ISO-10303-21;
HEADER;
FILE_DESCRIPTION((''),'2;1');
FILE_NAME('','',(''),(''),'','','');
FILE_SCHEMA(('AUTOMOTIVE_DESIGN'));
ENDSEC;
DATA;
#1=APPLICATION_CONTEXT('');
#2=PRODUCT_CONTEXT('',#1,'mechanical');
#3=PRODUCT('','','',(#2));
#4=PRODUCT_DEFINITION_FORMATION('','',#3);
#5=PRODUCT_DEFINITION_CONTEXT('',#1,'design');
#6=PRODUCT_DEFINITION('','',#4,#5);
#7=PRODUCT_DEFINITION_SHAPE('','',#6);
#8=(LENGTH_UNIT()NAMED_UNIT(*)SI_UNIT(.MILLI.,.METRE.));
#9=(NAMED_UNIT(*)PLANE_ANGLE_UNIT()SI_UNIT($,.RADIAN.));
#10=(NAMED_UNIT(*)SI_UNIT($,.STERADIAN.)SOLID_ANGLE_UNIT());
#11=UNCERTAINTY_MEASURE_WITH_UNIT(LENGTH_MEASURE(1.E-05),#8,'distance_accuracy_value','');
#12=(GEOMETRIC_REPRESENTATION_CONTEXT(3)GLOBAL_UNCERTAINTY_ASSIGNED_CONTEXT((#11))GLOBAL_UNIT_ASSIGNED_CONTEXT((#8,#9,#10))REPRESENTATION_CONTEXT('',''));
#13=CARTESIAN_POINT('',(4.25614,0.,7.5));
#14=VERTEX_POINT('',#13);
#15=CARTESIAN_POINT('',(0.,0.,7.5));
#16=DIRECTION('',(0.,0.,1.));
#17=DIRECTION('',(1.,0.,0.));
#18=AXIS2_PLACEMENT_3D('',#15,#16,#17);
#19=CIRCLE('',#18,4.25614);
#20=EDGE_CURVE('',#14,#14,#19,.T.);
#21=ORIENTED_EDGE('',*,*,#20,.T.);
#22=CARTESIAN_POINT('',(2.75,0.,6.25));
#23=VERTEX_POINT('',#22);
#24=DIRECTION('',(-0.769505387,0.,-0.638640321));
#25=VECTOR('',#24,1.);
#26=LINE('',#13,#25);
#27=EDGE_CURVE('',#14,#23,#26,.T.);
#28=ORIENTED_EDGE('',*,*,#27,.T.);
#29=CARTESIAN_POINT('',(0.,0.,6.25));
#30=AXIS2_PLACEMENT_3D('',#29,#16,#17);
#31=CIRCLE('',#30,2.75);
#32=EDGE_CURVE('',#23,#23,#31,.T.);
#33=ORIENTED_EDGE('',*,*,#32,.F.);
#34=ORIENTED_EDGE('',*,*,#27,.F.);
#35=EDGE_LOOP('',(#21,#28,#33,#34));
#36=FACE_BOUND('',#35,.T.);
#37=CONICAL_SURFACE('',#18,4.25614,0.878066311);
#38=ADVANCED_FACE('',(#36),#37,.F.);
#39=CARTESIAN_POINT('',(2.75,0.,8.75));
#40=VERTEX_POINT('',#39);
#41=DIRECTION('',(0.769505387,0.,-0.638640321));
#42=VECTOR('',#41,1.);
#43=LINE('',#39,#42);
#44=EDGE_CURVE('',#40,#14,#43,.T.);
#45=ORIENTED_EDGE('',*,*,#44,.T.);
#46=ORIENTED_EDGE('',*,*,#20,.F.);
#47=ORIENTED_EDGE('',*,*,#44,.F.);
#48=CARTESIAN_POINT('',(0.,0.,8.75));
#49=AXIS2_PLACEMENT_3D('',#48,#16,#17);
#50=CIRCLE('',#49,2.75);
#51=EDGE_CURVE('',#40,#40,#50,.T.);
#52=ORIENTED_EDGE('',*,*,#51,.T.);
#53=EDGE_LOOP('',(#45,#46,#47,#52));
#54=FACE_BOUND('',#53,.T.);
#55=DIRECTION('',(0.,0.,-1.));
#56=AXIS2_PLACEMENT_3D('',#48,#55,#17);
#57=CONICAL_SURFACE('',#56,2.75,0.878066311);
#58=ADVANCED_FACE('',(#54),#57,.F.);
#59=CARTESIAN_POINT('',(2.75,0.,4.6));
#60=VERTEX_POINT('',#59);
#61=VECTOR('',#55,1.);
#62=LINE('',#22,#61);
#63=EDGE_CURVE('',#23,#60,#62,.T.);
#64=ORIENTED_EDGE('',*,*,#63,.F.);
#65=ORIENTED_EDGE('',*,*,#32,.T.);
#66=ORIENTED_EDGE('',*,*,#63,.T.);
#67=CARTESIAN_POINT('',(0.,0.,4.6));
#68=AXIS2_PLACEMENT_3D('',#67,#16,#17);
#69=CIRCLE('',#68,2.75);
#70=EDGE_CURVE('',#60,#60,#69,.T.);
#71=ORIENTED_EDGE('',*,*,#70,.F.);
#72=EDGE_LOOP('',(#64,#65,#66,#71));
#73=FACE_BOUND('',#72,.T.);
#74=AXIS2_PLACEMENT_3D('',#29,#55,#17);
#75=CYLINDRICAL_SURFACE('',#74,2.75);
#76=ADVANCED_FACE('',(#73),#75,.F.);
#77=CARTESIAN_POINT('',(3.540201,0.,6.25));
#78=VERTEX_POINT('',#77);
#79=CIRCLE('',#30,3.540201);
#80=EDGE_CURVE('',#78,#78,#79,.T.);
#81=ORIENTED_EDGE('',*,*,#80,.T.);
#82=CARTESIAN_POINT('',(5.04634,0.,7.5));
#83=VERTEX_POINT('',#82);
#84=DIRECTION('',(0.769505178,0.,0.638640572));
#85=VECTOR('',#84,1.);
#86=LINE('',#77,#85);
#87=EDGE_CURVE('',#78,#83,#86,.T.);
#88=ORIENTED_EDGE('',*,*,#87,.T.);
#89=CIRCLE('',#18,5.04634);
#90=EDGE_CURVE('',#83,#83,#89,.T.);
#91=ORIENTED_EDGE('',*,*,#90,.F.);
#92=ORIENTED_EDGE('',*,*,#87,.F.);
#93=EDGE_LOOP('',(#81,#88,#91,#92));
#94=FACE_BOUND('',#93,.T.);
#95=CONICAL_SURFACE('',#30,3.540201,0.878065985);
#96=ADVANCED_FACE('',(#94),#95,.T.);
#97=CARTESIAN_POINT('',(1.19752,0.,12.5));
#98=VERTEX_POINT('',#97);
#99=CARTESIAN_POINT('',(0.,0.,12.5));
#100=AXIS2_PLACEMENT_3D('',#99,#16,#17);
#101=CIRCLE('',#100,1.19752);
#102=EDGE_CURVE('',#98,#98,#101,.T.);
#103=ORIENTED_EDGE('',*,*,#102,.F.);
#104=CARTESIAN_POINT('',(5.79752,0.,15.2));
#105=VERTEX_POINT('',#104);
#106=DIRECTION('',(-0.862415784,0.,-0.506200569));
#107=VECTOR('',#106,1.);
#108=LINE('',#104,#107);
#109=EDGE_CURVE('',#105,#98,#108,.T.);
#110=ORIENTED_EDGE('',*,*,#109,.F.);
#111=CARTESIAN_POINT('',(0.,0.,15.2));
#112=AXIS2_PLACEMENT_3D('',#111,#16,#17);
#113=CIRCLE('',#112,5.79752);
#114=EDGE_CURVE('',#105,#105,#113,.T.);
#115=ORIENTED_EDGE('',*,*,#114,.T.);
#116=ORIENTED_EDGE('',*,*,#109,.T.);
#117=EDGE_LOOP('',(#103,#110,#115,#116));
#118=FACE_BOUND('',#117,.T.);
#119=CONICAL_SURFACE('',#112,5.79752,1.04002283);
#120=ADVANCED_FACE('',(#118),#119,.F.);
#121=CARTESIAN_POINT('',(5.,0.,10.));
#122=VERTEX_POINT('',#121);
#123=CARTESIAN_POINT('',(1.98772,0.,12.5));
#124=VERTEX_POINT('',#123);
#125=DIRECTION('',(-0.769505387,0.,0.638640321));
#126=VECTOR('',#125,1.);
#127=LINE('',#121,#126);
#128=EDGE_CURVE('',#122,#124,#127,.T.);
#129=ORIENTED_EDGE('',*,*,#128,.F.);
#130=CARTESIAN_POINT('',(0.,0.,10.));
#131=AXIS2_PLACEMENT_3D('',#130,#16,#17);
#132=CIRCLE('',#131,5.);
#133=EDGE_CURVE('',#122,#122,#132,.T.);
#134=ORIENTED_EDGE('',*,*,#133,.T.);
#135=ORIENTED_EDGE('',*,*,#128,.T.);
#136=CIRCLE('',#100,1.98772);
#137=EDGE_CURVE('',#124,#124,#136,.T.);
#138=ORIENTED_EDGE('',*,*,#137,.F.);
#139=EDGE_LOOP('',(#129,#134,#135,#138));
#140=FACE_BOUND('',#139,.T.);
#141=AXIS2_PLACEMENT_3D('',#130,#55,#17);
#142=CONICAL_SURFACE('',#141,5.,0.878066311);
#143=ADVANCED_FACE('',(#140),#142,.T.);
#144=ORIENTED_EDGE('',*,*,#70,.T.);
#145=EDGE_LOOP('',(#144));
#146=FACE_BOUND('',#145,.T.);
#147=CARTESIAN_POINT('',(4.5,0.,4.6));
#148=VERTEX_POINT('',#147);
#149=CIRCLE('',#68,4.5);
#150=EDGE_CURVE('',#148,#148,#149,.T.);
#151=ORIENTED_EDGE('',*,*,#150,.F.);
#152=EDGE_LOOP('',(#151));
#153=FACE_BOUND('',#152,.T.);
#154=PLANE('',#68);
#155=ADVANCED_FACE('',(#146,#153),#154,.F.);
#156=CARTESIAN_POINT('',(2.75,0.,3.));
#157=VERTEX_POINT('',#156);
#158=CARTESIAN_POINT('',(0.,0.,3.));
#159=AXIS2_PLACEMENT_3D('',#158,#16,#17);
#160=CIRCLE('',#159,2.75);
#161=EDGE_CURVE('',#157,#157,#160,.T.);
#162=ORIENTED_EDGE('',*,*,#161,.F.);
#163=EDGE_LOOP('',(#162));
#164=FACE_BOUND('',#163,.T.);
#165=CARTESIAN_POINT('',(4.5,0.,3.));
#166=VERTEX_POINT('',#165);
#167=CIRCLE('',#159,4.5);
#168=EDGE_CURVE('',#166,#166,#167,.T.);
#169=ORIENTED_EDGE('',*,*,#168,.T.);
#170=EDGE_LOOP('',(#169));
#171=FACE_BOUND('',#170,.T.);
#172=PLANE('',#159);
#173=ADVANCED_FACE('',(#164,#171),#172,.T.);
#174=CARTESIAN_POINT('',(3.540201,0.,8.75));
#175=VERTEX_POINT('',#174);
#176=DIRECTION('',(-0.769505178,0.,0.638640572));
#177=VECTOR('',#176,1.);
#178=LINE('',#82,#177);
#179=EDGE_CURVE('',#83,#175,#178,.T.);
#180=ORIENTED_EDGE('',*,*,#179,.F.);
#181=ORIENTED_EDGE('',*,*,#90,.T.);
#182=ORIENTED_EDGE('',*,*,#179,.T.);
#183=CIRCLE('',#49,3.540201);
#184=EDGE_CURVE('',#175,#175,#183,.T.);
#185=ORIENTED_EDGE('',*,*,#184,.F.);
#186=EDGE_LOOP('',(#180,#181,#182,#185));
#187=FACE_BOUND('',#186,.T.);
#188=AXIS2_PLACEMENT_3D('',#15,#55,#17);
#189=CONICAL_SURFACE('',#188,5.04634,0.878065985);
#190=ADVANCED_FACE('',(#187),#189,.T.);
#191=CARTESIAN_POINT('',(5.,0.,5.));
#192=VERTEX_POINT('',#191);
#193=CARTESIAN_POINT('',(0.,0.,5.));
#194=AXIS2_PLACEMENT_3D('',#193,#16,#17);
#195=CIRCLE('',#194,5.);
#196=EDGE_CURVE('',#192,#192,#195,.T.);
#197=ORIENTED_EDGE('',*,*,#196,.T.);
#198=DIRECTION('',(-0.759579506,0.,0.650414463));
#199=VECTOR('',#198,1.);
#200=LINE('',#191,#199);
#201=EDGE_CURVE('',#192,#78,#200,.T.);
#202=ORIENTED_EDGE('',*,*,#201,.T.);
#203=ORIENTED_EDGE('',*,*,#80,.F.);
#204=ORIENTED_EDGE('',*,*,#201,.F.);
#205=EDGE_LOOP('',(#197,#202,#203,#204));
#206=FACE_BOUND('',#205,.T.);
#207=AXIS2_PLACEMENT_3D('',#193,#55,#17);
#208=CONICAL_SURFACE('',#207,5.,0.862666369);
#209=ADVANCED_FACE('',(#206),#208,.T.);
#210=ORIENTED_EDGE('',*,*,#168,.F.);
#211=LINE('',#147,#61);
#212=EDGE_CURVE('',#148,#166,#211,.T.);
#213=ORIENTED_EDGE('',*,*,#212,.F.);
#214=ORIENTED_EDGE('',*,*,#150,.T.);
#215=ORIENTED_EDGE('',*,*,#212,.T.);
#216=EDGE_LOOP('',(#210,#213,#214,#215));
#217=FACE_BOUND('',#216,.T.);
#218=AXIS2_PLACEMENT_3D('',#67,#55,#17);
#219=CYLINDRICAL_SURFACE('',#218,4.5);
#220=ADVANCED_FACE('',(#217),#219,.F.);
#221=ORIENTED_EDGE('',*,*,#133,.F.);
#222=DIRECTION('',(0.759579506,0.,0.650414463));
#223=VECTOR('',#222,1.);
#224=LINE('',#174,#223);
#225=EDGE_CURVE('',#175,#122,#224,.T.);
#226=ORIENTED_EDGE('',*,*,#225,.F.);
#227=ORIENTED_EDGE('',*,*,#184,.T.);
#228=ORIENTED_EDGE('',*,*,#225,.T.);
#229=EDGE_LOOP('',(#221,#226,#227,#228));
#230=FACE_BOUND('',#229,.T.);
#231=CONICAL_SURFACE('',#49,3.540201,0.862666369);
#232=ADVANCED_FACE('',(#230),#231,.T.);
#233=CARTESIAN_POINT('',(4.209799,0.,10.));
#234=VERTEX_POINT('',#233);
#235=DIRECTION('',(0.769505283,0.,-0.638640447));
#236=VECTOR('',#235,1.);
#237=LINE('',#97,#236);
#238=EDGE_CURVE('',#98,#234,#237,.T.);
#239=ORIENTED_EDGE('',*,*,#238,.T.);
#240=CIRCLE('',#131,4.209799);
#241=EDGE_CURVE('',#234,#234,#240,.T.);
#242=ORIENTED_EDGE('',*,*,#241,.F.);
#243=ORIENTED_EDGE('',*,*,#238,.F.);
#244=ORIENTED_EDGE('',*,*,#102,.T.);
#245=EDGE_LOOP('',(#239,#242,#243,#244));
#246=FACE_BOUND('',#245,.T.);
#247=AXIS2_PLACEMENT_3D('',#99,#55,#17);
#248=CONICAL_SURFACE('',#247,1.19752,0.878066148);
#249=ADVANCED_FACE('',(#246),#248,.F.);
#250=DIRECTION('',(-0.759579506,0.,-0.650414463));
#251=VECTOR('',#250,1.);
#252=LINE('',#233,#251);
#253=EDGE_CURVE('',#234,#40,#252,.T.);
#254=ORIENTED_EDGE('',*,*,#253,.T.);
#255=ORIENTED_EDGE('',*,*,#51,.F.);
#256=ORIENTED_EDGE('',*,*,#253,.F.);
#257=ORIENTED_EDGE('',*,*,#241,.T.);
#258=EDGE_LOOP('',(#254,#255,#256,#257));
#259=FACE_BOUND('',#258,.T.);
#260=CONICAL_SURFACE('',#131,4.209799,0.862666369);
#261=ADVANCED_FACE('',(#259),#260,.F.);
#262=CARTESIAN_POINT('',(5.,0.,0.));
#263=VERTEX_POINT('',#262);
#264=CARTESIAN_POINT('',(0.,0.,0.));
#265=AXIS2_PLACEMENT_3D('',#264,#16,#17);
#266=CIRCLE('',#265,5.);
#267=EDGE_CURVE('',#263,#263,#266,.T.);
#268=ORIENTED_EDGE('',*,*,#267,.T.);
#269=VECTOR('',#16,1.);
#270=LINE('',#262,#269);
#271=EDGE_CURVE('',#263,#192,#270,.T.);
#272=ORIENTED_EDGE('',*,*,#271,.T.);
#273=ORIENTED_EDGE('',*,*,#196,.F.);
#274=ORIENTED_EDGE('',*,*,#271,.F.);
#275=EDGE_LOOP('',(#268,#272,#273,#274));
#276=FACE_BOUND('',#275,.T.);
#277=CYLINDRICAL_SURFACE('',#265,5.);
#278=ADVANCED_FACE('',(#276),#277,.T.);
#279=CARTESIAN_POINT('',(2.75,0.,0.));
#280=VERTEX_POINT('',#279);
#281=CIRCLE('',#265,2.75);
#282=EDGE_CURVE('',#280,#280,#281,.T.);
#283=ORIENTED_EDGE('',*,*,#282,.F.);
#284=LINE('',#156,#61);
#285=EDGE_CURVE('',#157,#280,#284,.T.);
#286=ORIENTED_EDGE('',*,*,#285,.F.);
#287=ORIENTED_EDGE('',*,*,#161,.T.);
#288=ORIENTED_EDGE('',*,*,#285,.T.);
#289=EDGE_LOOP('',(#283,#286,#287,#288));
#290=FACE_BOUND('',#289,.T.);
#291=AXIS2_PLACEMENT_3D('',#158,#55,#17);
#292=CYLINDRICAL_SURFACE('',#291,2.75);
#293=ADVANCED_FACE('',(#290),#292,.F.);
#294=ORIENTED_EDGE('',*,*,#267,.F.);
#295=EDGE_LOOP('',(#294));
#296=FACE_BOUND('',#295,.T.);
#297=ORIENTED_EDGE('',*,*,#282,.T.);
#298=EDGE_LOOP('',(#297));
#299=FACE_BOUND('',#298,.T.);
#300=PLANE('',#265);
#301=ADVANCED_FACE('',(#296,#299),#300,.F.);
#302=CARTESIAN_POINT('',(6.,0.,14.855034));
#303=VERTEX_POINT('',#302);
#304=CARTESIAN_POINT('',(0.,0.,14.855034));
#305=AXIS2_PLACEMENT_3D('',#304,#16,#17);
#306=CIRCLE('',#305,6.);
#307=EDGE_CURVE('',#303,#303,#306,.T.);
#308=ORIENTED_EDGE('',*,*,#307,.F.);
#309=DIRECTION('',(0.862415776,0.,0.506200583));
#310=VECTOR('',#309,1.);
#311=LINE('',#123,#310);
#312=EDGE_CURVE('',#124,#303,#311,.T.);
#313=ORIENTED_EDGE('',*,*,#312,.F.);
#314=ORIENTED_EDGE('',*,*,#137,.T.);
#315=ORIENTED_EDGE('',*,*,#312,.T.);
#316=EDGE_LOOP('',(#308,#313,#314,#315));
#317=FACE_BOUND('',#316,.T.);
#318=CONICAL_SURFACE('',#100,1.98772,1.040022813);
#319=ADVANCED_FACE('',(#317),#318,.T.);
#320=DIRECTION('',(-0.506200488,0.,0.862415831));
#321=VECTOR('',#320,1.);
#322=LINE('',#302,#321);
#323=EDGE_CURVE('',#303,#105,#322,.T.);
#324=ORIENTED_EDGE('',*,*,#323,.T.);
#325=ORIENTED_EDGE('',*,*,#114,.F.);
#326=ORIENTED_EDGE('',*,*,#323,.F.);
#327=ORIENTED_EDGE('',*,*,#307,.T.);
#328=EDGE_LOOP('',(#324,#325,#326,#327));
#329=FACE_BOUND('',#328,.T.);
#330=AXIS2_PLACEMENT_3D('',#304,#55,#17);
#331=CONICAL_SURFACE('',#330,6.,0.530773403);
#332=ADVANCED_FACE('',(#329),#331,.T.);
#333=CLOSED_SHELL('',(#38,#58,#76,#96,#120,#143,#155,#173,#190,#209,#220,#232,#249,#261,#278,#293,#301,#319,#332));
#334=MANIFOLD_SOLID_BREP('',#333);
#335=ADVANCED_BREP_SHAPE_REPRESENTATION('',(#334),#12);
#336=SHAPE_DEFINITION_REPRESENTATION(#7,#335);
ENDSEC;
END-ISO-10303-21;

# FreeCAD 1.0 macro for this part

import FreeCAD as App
import Part
import Sketcher
from FreeCAD import Vector


def add_polygon(sketch, points):
    """Adds a closed chain of lines whose ends are joined by coincident constraints."""
    first, n = sketch.GeometryCount, len(points)
    for a, b in zip(points, points[1:] + points[:1]):
        sketch.addGeometry(Part.LineSegment(App.Vector(*a, 0), App.Vector(*b, 0)), False)
    for i in range(n):
        sketch.addConstraint(Sketcher.Constraint("Coincident", first + i, 2, first + (i + 1) % n, 1))

doc = App.newDocument("Part")
body = doc.addObject("PartDesign::Body", "Body")

sketch1 = body.newObject("Sketcher::SketchObject", "Sketch")
sketch1.AttachmentSupport = (doc.getObject("XZ_Plane"), [""])
sketch1.MapMode = "FlatFace"
add_polygon(sketch1, [(2.75, 3), (2.75, 0), (5, 0), (5, 5), (3.54, 6.25), (5.05, 7.5), (3.54, 8.75), (5, 10), (1.99, 12.5), (6, 14.86), (5.8, 15.2), (1.2, 12.5), (4.21, 10), (2.75, 8.75), (4.26, 7.5), (2.75, 6.25), (2.75, 4.6), (4.5, 4.6), (4.5, 3)])
sketch1.addConstraint([
    Sketcher.Constraint("Vertical", 0),
    Sketcher.Constraint("Horizontal", 1),
    Sketcher.Constraint("Vertical", 2),
    Sketcher.Constraint("Vertical", 15),
    Sketcher.Constraint("Horizontal", 16),
    Sketcher.Constraint("Vertical", 17),
    Sketcher.Constraint("Horizontal", 18),
    Sketcher.Constraint("PointOnObject", 0, 2, -1),
    Sketcher.Constraint("Parallel", 5, 7),
    Sketcher.Constraint("Perpendicular", 8, 9),
    Sketcher.Constraint("Perpendicular", 9, 10),
    Sketcher.Constraint("Parallel", 7, 11),
    Sketcher.Constraint("Parallel", 6, 12),
    Sketcher.Constraint("Parallel", 11, 13),
    Sketcher.Constraint("Parallel", 4, 14),
    Sketcher.Constraint("Horizontal", 7, 2, 10, 2),
    Sketcher.Constraint("Horizontal", 6, 2, 11, 2),
    Sketcher.Constraint("Horizontal", 5, 2, 12, 2),
    Sketcher.Constraint("Horizontal", 4, 2, 13, 2),
    Sketcher.Constraint("Horizontal", 3, 2, 14, 2),
    Sketcher.Constraint("Vertical", 3, 2, 5, 2),
    Sketcher.Constraint("Vertical", 2, 2, 6, 2),
    Sketcher.Constraint("Vertical", 0, 2, 12, 2),
    Sketcher.Constraint("Equal", 4, 5),
    Sketcher.Constraint("Equal", 3, 6),
    Sketcher.Constraint("DistanceY", 0, 2, 0, 1, 3.0),
    Sketcher.Constraint("DistanceY", 2, 1, 2, 2, 5.0),
    Sketcher.Constraint("DistanceY", 17, 2, 17, 1, 1.6),
    Sketcher.Constraint("DistanceX", -1, 1, 1, 2, 5.0),
    Sketcher.Constraint("DistanceY", -1, 1, 6, 2, 10.0),
    Sketcher.Constraint("DistanceX", -1, 1, 8, 2, 6.0),
    Sketcher.Constraint("DistanceY", 4, 2, 7, 2, 5.0),
    Sketcher.Constraint("Distance", 9, 0.4),
    Sketcher.Constraint("DistanceX", 1, 1, 1, 2, 2.25),
    Sketcher.Constraint("DistanceX", 16, 1, 16, 2, 1.75),
    Sketcher.Constraint("DistanceY", 15, 2, 15, 1, 1.65),
    Sketcher.Constraint("DistanceY", -1, 1, 9, 2, 15.2),
    Sketcher.Constraint("DistanceX", 10, 2, 9, 2, 4.6),
])
revolution = body.newObject("PartDesign::Revolution", "Revolution")
revolution.Profile = sketch1
revolution.ReferenceAxis = (sketch1, ["V_Axis"])
revolution.Angle = 360

doc.recompute()
